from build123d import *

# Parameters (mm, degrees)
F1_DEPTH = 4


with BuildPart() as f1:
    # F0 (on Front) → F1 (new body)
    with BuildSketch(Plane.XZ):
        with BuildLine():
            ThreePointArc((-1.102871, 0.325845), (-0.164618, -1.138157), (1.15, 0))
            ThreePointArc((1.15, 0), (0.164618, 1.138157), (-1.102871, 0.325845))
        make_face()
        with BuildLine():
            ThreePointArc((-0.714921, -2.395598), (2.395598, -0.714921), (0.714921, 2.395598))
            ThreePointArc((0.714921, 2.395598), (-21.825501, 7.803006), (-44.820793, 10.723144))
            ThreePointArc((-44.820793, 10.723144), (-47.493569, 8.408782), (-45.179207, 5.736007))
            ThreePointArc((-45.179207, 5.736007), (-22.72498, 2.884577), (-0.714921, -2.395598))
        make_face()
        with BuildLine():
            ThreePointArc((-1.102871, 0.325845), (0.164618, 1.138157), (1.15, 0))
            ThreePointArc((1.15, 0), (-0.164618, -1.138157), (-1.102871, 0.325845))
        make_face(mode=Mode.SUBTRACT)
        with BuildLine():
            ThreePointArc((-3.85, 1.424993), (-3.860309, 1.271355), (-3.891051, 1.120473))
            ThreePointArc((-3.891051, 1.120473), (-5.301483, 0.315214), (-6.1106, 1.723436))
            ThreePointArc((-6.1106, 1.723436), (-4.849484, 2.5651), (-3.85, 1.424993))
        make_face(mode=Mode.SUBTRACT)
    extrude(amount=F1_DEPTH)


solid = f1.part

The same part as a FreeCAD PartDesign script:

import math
import FreeCAD as App
import Part
import Sketcher

V = App.Vector

doc = App.newDocument("Part")
body = doc.addObject("PartDesign::Body", "Body")

# Sketch on XZ plane
sketch1 = body.newObject("Sketcher::SketchObject", "Sketch")
sketch1.AttachmentSupport = (doc.getObject("XZ_Plane"), [""])
sketch1.MapMode = "FlatFace"
sketch1.addGeometry([
    Part.ArcOfCircle(Part.Circle(V(0, 0, 0), V(0, 0, 1), 2.5), math.radians(-107), math.radians(73)),  # 0
    Part.ArcOfCircle(Part.Circle(V(-60.05, -201.23, 0), V(0, 0, 1), 212.5), math.radians(73.38), math.radians(85.89)),  # 1
    Part.ArcOfCircle(Part.Circle(V(-45, 8.23, 0), V(0, 0, 1), 2.5), math.radians(86), math.radians(266)),  # 2
    Part.ArcOfCircle(Part.Circle(V(-60.05, -201.23, 0), V(0, 0, 1), 207.5), math.radians(73.38), math.radians(85.89)),  # 3
    Part.ArcOfCircle(Part.Circle(V(0, 0, 0), V(0, 0, 1), 1.15), math.radians(164), math.radians(360)),  # 4
    Part.ArcOfCircle(Part.Circle(V(0, 0, 0), V(0, 0, 1), 1.15), math.radians(0), math.radians(164)),  # 5
    Part.ArcOfCircle(Part.Circle(V(-5, 1.42, 0), V(0, 0, 1), 1.15), math.radians(0), math.radians(165)),  # 6
    Part.ArcOfCircle(Part.Circle(V(-5, 1.42, 0), V(0, 0, 1), 1.15), math.radians(-15.36), math.radians(0)),  # 7
    Part.ArcOfCircle(Part.Circle(V(-5, 1.42, 0), V(0, 0, 1), 1.15), math.radians(165), math.radians(345)),  # 8
], False)
sketch1.addConstraint([
    Sketcher.Constraint("Tangent", 0, 2, 1, 1),
    Sketcher.Constraint("Tangent", 1, 2, 2, 1),
    Sketcher.Constraint("Tangent", 2, 2, 3, 2),
    Sketcher.Constraint("Tangent", 3, 1, 0, 1),
    Sketcher.Constraint("Tangent", 4, 1, 5, 2),
    Sketcher.Constraint("Coincident", 5, 1, 4, 2),
    Sketcher.Constraint("Tangent", 6, 1, 7, 2),
    Sketcher.Constraint("Tangent", 7, 1, 8, 2),
    Sketcher.Constraint("Tangent", 8, 1, 6, 2),
    Sketcher.Constraint("Coincident", 0, 3, -1, 1),
    Sketcher.Constraint("Coincident", 4, 3, -1, 1),
    Sketcher.Constraint("Equal", 0, 2),
    Sketcher.Constraint("Equal", 5, 6),
    Sketcher.Constraint("PointOnObject", 5, 1, -1),
    Sketcher.Constraint("Horizontal", 8, 3, 6, 1),
    Sketcher.Constraint("Radius", 0, 2.5),
    Sketcher.Constraint("Radius", 4, 1.15),
    Sketcher.Constraint("DistanceX", 2, 3, -1, 1, 45.0),
    Sketcher.Constraint("DistanceX", 6, 3, -1, 1, 5.0),
    Sketcher.Constraint("Radius", 1, 212.499979),
    Sketcher.Constraint("Radius", 3, 207.500056),
    Sketcher.Constraint("DistanceX", 8, 1, -1, 1, 6.1106),
    Sketcher.Constraint("DistanceX", 3, 3, -1, 1, 60.053392),
    Sketcher.Constraint("DistanceX", 4, 1, -1, 1, 1.102871),
    Sketcher.Constraint("DistanceX", 7, 1, -1, 1, 3.891051),
    Sketcher.Constraint("DistanceY", 5, 3, 7, 3, 1.424992),
])
pad1 = body.newObject("PartDesign::Pad", "Pad")
pad1.Profile = sketch1
pad1.Length = 4

doc.recompute()
